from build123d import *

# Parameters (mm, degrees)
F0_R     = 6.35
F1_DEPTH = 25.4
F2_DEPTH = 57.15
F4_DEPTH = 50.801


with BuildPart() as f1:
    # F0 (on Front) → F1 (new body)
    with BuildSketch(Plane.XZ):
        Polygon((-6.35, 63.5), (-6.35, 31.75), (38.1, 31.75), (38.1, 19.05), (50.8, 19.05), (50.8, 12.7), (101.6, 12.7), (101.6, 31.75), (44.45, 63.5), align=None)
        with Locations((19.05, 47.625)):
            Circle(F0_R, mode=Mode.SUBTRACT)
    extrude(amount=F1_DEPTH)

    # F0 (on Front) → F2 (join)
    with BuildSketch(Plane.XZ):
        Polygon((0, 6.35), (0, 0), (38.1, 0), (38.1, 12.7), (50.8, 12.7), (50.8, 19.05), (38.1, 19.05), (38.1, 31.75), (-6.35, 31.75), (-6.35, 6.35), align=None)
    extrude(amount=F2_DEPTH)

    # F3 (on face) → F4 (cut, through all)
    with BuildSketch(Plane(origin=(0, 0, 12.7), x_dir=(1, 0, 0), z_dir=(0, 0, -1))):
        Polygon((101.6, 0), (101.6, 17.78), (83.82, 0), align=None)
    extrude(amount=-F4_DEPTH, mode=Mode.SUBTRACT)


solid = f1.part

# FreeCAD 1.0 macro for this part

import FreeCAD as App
import Part
import Sketcher
from FreeCAD import Vector
Q = App.Units.Quantity

doc = App.newDocument("Part")
params = doc.addObject("Spreadsheet::Sheet", "Params")
for row, (alias, value) in enumerate([
    ("sketch1_diameter", "0.5 in"),
    ("sketch1_width", "2 in"),
    ("sketch1_width2", "0.5 in"),
    ("sketch1_width3", "1.75 in"),
    ("sketch1_height", "1.25 in"),
    ("pad1_length", "1 in"),
    ("sketch2_height", "1 in"),
    ("sketch2_width", "1.5 in"),
    ("sketch2_width2", "1.75 in"),
    ("pad2_length", "2.25 in"),
    ("sketch3_width", "0.7 in"),
], start=1):
    params.set(f"A{row}", alias)
    params.set(f"B{row}", "=" + value)
    params.setAlias(f"B{row}", alias)

body = doc.addObject("PartDesign::Body", "Body")

# Sketch on XZ plane
sketch1 = body.newObject("Sketcher::SketchObject", "Sketch")
sketch1.AttachmentSupport = (doc.getObject("XZ_Plane"), [""])
sketch1.MapMode = "FlatFace"
sketch1.addGeometry([
    Part.LineSegment(Vector(-6, 64, 0), Vector(-6, 32, 0)),  # 0
    Part.LineSegment(Vector(-6, 32, 0), Vector(38, 32, 0)),  # 1
    Part.LineSegment(Vector(38, 32, 0), Vector(38, 19, 0)),  # 2
    Part.LineSegment(Vector(38, 19, 0), Vector(51, 19, 0)),  # 3
    Part.LineSegment(Vector(51, 19, 0), Vector(51, 13, 0)),  # 4
    Part.LineSegment(Vector(51, 13, 0), Vector(102, 13, 0)),  # 5
    Part.LineSegment(Vector(102, 13, 0), Vector(102, 32, 0)),  # 6
    Part.LineSegment(Vector(102, 32, 0), Vector(44, 64, 0)),  # 7
    Part.LineSegment(Vector(44, 64, 0), Vector(-6, 64, 0)),  # 8
    Part.Circle(Vector(19, 48, 0), Vector(0, 0, 1), 6),  # 9
], False)
sketch1.addConstraint([
    Sketcher.Constraint("Coincident", 0, 2, 1, 1),
    Sketcher.Constraint("Coincident", 1, 2, 2, 1),
    Sketcher.Constraint("Coincident", 2, 2, 3, 1),
    Sketcher.Constraint("Coincident", 3, 2, 4, 1),
    Sketcher.Constraint("Coincident", 4, 2, 5, 1),
    Sketcher.Constraint("Coincident", 5, 2, 6, 1),
    Sketcher.Constraint("Coincident", 6, 2, 7, 1),
    Sketcher.Constraint("Coincident", 7, 2, 8, 1),
    Sketcher.Constraint("Coincident", 8, 2, 0, 1),
    Sketcher.Constraint("Vertical", 0),
    Sketcher.Constraint("Horizontal", 1),
    Sketcher.Constraint("Vertical", 2),
    Sketcher.Constraint("Horizontal", 3),
    Sketcher.Constraint("Vertical", 4),
    Sketcher.Constraint("Horizontal", 5),
    Sketcher.Constraint("Vertical", 6),
    Sketcher.Constraint("Horizontal", 8),
    Sketcher.Constraint("Horizontal", 1, 2, 6, 2),
    Sketcher.Constraint("Equal", 5, 8),
    Sketcher.Constraint("Equal", 3, 2),
    Sketcher.Constraint("Diameter", 9, Q("0.5 in")),
    Sketcher.Constraint("DistanceX", 5, 1, 5, 2, Q("2 in")),
    Sketcher.Constraint("DistanceX", 3, 1, 3, 2, Q("0.5 in")),
    Sketcher.Constraint("DistanceX", -1, 1, 3, 2, Q("2 in")),
    Sketcher.Constraint("DistanceX", 0, 2, 9, 3, Q("1 in")),
    Sketcher.Constraint("DistanceY", 4, 2, 7, 2, Q("2 in")),
    Sketcher.Constraint("DistanceX", 1, 1, 1, 2, Q("1.75 in")),
    Sketcher.Constraint("DistanceY", 0, 2, 0, 1, Q("1.25 in")),
    Sketcher.Constraint("DistanceY", -1, 1, 4, 2, Q("0.5 in")),
    Sketcher.Constraint("DistanceY", -1, 1, 9, 3, Q("1.875 in")),
])
sketch1.setExpression("Constraints[20]", "Params.sketch1_diameter")
sketch1.setExpression("Constraints[21]", "Params.sketch1_width")
sketch1.setExpression("Constraints[22]", "Params.sketch1_width2")
sketch1.setExpression("Constraints[26]", "Params.sketch1_width3")
sketch1.setExpression("Constraints[27]", "Params.sketch1_height")
pad1 = body.newObject("PartDesign::Pad", "Pad")
pad1.Profile = sketch1
pad1.setExpression("Length", "Params.pad1_length")

# Sketch on XZ plane
sketch2 = body.newObject("Sketcher::SketchObject", "Sketch001")
sketch2.AttachmentSupport = (doc.getObject("XZ_Plane"), [""])
sketch2.MapMode = "FlatFace"
sketch2.addGeometry([
    Part.LineSegment(Vector(0, 6, 0), Vector(0, 0, 0)),  # 0
    Part.LineSegment(Vector(0, 0, 0), Vector(38, 0, 0)),  # 1
    Part.LineSegment(Vector(38, 0, 0), Vector(38, 13, 0)),  # 2
    Part.LineSegment(Vector(38, 13, 0), Vector(51, 13, 0)),  # 3
    Part.LineSegment(Vector(51, 13, 0), Vector(51, 19, 0)),  # 4
    Part.LineSegment(Vector(51, 19, 0), Vector(38, 19, 0)),  # 5
    Part.LineSegment(Vector(38, 19, 0), Vector(38, 32, 0)),  # 6
    Part.LineSegment(Vector(38, 32, 0), Vector(-6, 32, 0)),  # 7
    Part.LineSegment(Vector(-6, 32, 0), Vector(-6, 6, 0)),  # 8
    Part.LineSegment(Vector(-6, 6, 0), Vector(0, 6, 0)),  # 9
], False)
sketch2.addConstraint([
    Sketcher.Constraint("Coincident", 0, 2, 1, 1),
    Sketcher.Constraint("Coincident", 1, 2, 2, 1),
    Sketcher.Constraint("Coincident", 2, 2, 3, 1),
    Sketcher.Constraint("Coincident", 3, 2, 4, 1),
    Sketcher.Constraint("Coincident", 4, 2, 5, 1),
    Sketcher.Constraint("Coincident", 5, 2, 6, 1),
    Sketcher.Constraint("Coincident", 6, 2, 7, 1),
    Sketcher.Constraint("Coincident", 7, 2, 8, 1),
    Sketcher.Constraint("Coincident", 8, 2, 9, 1),
    Sketcher.Constraint("Coincident", 9, 2, 0, 1),
    Sketcher.Constraint("Vertical", 0),
    Sketcher.Constraint("Horizontal", 1),
    Sketcher.Constraint("Vertical", 2),
    Sketcher.Constraint("Horizontal", 3),
    Sketcher.Constraint("Vertical", 4),
    Sketcher.Constraint("Horizontal", 5),
    Sketcher.Constraint("Vertical", 6),
    Sketcher.Constraint("Horizontal", 7),
    Sketcher.Constraint("Vertical", 8),
    Sketcher.Constraint("Horizontal", 9),
    Sketcher.Constraint("Coincident", 0, 2, -1, 1),
    Sketcher.Constraint("Vertical", 2, 2, 5, 2),
    Sketcher.Constraint("Equal", 9, 0),
    Sketcher.Constraint("Equal", 5, 2),
    Sketcher.Constraint("Equal", 0, 4),
    Sketcher.Constraint("Equal", 2, 6),
    Sketcher.Constraint("DistanceY", 8, 2, 8, 1, Q("1 in")),
    Sketcher.Constraint("DistanceX", 1, 1, 1, 2, Q("1.5 in")),
    Sketcher.Constraint("DistanceX", 7, 2, 7, 1, Q("1.75 in")),
])
sketch2.setExpression("Constraints[26]", "Params.sketch2_height")
sketch2.setExpression("Constraints[27]", "Params.sketch2_width")
sketch2.setExpression("Constraints[28]", "Params.sketch2_width2")
pad2 = body.newObject("PartDesign::Pad", "Pad001")
pad2.Profile = sketch2
pad2.setExpression("Length", "Params.pad2_length")

# Sketch on XY plane
sketch3 = body.newObject("Sketcher::SketchObject", "Sketch002")
sketch3.AttachmentSupport = (doc.getObject("XY_Plane"), [""])
sketch3.MapMode = "FlatFace"
sketch3.AttachmentOffset = App.Placement(Vector(0, 0, 0.5 * 25.4), App.Rotation())
sketch3.addGeometry([
    Part.LineSegment(Vector(102, 0, 0), Vector(102, -18, 0)),
    Part.LineSegment(Vector(102, -18, 0), Vector(84, 0, 0)),
    Part.LineSegment(Vector(84, 0, 0), Vector(102, 0, 0)),
], False)
sketch3.addConstraint([
    Sketcher.Constraint("Coincident", 0, 2, 1, 1),
    Sketcher.Constraint("Coincident", 1, 2, 2, 1),
    Sketcher.Constraint("Coincident", 2, 2, 0, 1),
    Sketcher.Constraint("Vertical", 0),
    Sketcher.Constraint("Horizontal", 2),
    Sketcher.Constraint("PointOnObject", 1, 2, -1),
    Sketcher.Constraint("Equal", 2, 0),
    Sketcher.Constraint("DistanceX", 2, 1, 2, 2, Q("0.7 in")),
    Sketcher.Constraint("DistanceX", -1, 1, 0, 2, Q("4 in")),
])
sketch3.setExpression("Constraints[7]", "Params.sketch3_width")
pocket1 = body.newObject("PartDesign::Pocket", "Pocket")
pocket1.Profile = sketch3
pocket1.Type = "ThroughAll"
pocket1.Reversed = True

doc.recompute()
